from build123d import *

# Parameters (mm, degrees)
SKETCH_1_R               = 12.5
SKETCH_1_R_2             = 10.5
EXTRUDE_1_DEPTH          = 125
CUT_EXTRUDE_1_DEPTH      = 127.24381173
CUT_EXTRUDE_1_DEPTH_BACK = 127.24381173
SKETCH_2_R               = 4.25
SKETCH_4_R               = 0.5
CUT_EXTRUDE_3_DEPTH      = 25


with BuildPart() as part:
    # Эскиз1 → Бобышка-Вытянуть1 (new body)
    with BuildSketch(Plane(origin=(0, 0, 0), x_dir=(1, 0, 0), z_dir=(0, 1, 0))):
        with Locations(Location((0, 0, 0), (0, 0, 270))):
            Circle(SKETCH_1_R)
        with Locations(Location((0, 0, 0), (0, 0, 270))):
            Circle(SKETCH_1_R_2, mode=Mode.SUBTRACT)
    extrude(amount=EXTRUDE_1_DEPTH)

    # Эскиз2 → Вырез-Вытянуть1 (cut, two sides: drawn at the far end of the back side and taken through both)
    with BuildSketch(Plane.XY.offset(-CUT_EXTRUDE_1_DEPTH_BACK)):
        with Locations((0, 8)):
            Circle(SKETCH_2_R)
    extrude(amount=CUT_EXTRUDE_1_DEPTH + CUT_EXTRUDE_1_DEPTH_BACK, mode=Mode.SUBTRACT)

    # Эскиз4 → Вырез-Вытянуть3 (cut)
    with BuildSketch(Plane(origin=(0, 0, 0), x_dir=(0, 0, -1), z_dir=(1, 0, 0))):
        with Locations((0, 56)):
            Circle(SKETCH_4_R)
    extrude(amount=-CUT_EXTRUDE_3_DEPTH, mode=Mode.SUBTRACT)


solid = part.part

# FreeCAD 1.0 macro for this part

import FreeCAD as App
import Part
import Sketcher

V = App.Vector
Q = App.Units.Quantity

doc = App.newDocument("Part")
body = doc.addObject("PartDesign::Body", "Body")

# Sketch on XZ plane
sketch1 = doc.addObject("Sketcher::SketchObject", "Sketch")
body.addObject(sketch1)
sketch1.AttachmentSupport = (doc.XZ_Plane, [""])
sketch1.MapMode = "FlatFace"
sketch1.addGeometry(Part.Circle(V(0, 0, 0), V(0, 0, 1), 12.5), False)
sketch1.addGeometry(Part.Circle(V(0, 0, 0), V(0, 0, 1), 10.5), False)
sketch1.addConstraint(Sketcher.Constraint("Coincident", 0, 3, -1, 1))
sketch1.addConstraint(Sketcher.Constraint("Coincident", 1, 3, -1, 1))
sketch1.addConstraint(Sketcher.Constraint("Diameter", 0, Q("25 mm")))
sketch1.addConstraint(Sketcher.Constraint("Diameter", 1, Q("21 mm")))
pad1 = doc.addObject("PartDesign::Pad", "Pad")
body.addObject(pad1)
pad1.Profile = sketch1
pad1.Length = 125
pad1.Reversed = True

# Sketch on XY plane
sketch2 = doc.addObject("Sketcher::SketchObject", "Sketch001")
body.addObject(sketch2)
sketch2.AttachmentSupport = (doc.XY_Plane, [""])
sketch2.MapMode = "FlatFace"
sketch2.addGeometry(Part.Circle(V(0, 8, 0), V(0, 0, 1), 4.25), False)
sketch2.addConstraint(Sketcher.Constraint("PointOnObject", 0, 3, -2))
sketch2.addConstraint(Sketcher.Constraint("Diameter", 0, Q("8.5 mm")))
sketch2.addConstraint(Sketcher.Constraint("DistanceY", -1, 1, 0, 3, Q("8 mm")))
pocket1 = doc.addObject("PartDesign::Pocket", "Pocket")
body.addObject(pocket1)
pocket1.Profile = sketch2
pocket1.Type = "ThroughAll"
pocket1.Midplane = True

# Sketch on YZ plane
sketch3 = doc.addObject("Sketcher::SketchObject", "Sketch002")
body.addObject(sketch3)
sketch3.AttachmentSupport = (doc.YZ_Plane, [""])
sketch3.MapMode = "FlatFace"
sketch3.addGeometry(Part.Circle(V(56, 0, 0), V(0, 0, 1), 0.5), False)
sketch3.addConstraint(Sketcher.Constraint("PointOnObject", 0, 3, -1))
sketch3.addConstraint(Sketcher.Constraint("Diameter", 0, Q("1 mm")))
sketch3.addConstraint(Sketcher.Constraint("DistanceX", -1, 1, 0, 3, Q("56 mm")))
pocket2 = doc.addObject("PartDesign::Pocket", "Pocket001")
body.addObject(pocket2)
pocket2.Profile = sketch3
pocket2.Length = 25

doc.recompute()
